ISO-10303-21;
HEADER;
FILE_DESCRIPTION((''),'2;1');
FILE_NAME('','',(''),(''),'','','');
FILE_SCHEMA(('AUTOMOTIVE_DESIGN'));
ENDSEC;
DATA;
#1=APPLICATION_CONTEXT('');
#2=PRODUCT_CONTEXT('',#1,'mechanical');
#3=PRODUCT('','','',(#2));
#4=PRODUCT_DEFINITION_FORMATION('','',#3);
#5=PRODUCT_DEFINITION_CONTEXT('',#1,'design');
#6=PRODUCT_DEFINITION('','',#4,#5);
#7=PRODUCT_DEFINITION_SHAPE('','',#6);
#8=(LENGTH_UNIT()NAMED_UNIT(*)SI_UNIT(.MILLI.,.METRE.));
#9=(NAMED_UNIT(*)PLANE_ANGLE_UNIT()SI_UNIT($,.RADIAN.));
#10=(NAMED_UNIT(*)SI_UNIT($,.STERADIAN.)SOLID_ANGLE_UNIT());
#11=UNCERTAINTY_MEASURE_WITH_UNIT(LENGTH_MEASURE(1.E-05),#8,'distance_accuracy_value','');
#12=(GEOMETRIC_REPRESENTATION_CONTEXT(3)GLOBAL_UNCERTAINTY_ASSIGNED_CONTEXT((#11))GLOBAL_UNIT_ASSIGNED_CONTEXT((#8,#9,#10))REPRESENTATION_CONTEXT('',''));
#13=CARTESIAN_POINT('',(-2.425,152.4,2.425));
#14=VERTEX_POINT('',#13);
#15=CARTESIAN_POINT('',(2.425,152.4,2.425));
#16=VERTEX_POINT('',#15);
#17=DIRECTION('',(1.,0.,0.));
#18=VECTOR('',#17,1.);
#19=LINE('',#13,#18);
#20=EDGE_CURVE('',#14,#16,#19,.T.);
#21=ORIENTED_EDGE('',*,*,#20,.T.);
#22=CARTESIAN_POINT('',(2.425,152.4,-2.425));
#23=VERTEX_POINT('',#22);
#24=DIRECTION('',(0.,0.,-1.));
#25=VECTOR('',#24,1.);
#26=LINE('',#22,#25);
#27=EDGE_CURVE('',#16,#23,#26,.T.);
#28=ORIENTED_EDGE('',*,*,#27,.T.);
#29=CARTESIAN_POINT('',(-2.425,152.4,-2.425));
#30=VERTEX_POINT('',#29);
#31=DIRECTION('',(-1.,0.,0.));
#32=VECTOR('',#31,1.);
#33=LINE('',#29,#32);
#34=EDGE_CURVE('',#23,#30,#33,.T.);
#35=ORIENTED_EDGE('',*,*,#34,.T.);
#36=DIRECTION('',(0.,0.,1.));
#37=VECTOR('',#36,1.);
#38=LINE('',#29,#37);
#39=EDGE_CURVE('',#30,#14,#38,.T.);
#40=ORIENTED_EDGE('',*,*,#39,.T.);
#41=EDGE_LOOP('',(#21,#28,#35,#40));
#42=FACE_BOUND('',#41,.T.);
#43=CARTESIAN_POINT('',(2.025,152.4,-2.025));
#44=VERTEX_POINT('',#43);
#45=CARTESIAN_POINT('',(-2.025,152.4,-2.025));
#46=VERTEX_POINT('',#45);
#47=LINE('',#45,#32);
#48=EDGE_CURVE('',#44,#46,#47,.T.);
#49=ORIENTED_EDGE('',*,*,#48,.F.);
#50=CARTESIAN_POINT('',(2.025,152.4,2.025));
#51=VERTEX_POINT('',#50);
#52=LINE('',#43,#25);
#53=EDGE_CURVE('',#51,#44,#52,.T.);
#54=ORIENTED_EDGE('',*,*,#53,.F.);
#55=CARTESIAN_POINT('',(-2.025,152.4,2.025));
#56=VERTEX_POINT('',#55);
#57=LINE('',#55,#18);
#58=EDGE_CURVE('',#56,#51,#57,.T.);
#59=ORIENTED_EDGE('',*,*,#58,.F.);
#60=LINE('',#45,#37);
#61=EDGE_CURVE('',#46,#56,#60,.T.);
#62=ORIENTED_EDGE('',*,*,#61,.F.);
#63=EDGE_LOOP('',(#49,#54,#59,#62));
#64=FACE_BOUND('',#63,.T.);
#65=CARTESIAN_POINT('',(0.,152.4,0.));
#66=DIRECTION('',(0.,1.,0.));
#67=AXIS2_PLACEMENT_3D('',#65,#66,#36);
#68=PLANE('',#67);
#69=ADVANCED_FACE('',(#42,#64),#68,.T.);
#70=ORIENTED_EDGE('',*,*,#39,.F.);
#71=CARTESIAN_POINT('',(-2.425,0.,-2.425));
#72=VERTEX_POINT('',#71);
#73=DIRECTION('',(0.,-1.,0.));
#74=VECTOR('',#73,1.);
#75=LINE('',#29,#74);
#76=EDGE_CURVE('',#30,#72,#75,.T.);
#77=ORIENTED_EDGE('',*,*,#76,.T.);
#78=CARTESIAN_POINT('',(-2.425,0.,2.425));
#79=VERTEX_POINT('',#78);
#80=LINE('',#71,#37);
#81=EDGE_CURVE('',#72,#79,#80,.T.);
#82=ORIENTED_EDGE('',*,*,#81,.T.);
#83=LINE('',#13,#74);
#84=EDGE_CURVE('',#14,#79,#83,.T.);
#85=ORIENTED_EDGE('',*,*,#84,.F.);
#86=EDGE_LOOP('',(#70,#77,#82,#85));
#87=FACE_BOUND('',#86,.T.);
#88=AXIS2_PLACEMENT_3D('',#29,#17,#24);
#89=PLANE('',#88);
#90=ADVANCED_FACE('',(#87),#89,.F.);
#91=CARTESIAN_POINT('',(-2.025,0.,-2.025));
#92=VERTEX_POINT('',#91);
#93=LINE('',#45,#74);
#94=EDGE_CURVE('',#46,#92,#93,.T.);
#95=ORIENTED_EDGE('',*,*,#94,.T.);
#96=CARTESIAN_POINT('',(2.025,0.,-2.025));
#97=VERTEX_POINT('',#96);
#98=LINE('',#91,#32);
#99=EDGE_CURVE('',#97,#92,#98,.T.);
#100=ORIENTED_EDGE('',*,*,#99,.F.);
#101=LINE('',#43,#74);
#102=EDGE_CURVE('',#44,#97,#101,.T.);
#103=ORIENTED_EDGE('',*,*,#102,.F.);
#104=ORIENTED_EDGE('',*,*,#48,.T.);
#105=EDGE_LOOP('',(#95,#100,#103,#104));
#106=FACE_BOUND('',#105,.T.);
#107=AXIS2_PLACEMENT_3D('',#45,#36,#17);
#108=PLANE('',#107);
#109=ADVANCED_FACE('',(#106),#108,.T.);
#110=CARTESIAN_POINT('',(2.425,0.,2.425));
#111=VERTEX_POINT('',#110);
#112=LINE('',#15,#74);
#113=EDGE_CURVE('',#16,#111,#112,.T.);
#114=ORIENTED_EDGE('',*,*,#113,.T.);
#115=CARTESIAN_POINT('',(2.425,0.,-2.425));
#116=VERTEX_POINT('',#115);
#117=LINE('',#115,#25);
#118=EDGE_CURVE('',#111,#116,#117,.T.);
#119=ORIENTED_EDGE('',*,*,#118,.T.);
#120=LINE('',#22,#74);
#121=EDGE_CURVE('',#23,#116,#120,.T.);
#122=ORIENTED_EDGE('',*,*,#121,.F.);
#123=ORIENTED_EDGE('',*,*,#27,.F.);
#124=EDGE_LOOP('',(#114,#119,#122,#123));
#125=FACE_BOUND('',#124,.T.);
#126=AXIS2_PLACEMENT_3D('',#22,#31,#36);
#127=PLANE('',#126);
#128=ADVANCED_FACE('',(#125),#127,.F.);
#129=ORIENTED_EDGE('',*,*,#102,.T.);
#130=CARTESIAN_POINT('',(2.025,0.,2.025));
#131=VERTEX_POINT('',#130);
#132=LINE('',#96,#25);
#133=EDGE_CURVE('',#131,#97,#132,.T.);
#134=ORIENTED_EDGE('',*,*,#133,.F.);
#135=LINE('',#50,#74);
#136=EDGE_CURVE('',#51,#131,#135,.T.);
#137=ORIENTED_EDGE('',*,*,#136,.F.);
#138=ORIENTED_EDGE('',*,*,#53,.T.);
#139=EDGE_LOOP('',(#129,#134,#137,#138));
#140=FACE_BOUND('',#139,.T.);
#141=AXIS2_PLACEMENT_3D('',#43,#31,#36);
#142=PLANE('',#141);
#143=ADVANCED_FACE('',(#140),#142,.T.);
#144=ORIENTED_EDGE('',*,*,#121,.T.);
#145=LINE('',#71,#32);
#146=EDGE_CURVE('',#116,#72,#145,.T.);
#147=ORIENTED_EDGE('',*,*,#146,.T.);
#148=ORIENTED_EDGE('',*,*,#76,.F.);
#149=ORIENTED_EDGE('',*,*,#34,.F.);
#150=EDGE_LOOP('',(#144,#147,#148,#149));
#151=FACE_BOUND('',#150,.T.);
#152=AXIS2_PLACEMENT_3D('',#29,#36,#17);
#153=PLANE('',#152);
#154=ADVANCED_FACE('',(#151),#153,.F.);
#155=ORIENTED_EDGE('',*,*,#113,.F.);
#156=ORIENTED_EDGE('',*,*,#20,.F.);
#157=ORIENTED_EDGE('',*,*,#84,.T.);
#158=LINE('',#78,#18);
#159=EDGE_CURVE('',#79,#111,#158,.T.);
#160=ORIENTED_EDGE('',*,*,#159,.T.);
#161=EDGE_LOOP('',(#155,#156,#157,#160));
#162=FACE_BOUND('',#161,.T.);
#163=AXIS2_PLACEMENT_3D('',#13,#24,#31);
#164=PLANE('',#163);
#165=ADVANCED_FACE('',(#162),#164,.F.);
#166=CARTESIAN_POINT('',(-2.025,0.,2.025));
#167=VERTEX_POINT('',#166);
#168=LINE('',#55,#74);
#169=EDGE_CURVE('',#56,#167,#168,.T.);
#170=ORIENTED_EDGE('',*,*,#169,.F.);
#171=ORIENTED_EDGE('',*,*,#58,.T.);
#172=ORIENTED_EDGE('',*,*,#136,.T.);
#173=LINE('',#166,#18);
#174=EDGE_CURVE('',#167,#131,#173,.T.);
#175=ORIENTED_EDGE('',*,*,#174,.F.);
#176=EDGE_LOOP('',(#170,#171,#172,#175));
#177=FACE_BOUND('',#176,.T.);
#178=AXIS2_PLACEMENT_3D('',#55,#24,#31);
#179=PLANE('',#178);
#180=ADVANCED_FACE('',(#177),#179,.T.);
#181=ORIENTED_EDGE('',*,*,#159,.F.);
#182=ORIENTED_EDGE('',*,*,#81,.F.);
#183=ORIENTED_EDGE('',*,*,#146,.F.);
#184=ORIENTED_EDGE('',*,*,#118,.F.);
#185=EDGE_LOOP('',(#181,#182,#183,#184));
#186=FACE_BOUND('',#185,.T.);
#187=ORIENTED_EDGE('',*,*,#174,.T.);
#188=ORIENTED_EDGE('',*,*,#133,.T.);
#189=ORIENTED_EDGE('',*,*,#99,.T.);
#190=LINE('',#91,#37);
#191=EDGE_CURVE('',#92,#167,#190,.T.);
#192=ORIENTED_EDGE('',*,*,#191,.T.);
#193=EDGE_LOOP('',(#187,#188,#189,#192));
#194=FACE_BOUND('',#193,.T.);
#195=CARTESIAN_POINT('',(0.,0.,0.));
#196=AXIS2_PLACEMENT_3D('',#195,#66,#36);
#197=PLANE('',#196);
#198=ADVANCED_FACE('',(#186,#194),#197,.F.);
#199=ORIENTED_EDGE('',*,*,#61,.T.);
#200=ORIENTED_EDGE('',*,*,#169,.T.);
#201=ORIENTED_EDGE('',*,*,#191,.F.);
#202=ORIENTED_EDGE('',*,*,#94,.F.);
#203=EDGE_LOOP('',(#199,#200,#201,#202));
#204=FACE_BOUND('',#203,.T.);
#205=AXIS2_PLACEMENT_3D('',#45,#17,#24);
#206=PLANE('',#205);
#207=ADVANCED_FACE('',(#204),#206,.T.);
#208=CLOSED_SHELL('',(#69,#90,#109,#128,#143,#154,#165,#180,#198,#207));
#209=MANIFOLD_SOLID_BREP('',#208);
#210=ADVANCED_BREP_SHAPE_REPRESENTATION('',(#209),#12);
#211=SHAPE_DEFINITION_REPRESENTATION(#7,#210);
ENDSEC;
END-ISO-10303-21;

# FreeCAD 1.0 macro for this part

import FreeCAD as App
import Part
import Sketcher
from FreeCAD import Vector
Q = App.Units.Quantity


def add_polygon(sketch, points):
    """Adds a closed chain of lines whose ends are joined by coincident constraints."""
    first, n = sketch.GeometryCount, len(points)
    for a, b in zip(points, points[1:] + points[:1]):
        sketch.addGeometry(Part.LineSegment(App.Vector(*a, 0), App.Vector(*b, 0)), False)
    for i in range(n):
        sketch.addConstraint(Sketcher.Constraint("Coincident", first + i, 2, first + (i + 1) % n, 1))

doc = App.newDocument("Part")
params = doc.addObject("Spreadsheet::Sheet", "Params")
for row, (alias, value) in enumerate([
    ("pad1_length", "6 in"),
], start=1):
    params.set(f"A{row}", alias)
    params.set(f"B{row}", "=" + value)
    params.setAlias(f"B{row}", alias)

body = doc.addObject("PartDesign::Body", "Body")

sketch1 = body.newObject("Sketcher::SketchObject", "Sketch")
sketch1.AttachmentSupport = (doc.getObject("XZ_Plane"), [""])
sketch1.MapMode = "FlatFace"
add_polygon(sketch1, [(-2.425, -2.425), (-2.425, 2.425), (2.425, 2.425), (2.425, -2.425)])
add_polygon(sketch1, [(2.025, 2.025), (-2.025, 2.025), (-2.025, -2.025), (2.025, -2.025)])
sketch1.addConstraint([
    Sketcher.Constraint("Vertical", 0),
    Sketcher.Constraint("Horizontal", 1),
    Sketcher.Constraint("Vertical", 2),
    Sketcher.Constraint("Horizontal", 3),
    Sketcher.Constraint("Horizontal", 4),
    Sketcher.Constraint("Vertical", 5),
    Sketcher.Constraint("Horizontal", 6),
    Sketcher.Constraint("Vertical", 7),
    Sketcher.Constraint("Symmetric", 0, 2, 2, 2, -1, 1),
    Sketcher.Constraint("Symmetric", 4, 2, 6, 2, -1, 1),
    Sketcher.Constraint("Equal", 3, 0),
    Sketcher.Constraint("Equal", 6, 5),
    Sketcher.Constraint("DistanceX", 1, 1, 1, 2, Q("4.85 mm")),
    Sketcher.Constraint("DistanceX", 4, 2, 4, 1, Q("4.05 mm")),
])
pad1 = body.newObject("PartDesign::Pad", "Pad")
pad1.Profile = sketch1
pad1.setExpression("Length", "Params.pad1_length")
pad1.Reversed = True

doc.recompute()
